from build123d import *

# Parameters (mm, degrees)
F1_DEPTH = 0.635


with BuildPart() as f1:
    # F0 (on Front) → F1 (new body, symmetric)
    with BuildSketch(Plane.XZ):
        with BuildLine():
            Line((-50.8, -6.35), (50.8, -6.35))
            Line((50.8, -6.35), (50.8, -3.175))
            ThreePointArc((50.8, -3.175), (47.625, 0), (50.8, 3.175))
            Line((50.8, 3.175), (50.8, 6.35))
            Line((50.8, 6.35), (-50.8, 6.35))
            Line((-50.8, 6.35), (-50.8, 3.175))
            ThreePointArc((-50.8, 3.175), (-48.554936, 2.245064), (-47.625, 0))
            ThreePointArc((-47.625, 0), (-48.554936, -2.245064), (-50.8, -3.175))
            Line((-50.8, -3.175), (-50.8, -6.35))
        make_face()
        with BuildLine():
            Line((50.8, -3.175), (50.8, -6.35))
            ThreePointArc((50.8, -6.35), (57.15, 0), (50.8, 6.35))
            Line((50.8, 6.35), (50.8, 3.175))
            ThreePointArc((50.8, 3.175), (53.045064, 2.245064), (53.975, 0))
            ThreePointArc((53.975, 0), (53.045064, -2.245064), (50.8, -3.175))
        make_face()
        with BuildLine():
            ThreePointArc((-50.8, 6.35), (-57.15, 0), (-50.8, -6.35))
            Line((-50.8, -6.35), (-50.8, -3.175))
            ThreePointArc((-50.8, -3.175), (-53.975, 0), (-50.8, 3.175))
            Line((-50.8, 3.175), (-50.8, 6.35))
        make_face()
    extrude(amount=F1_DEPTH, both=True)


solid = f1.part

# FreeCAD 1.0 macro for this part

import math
import FreeCAD as App
import Part
import Sketcher

V = App.Vector
Q = App.Units.Quantity

doc = App.newDocument("Part")
body = doc.addObject("PartDesign::Body", "Body")

# Sketch on XZ plane
sketch1 = body.newObject("Sketcher::SketchObject", "Sketch")
sketch1.AttachmentSupport = (doc.getObject("XZ_Plane"), [""])
sketch1.MapMode = "FlatFace"
sketch1.addGeometry(Part.LineSegment(V(-50.8, -6.35, 0), V(50.8, -6.35, 0)), False)
sketch1.addGeometry(Part.ArcOfCircle(Part.Circle(V(50.8, 0, 0), V(0, 0, 1), 6.35), math.radians(-90), math.radians(90)), False)
sketch1.addGeometry(Part.LineSegment(V(50.8, 6.35, 0), V(-50.8, 6.35, 0)), False)
sketch1.addGeometry(Part.ArcOfCircle(Part.Circle(V(-50.8, 0, 0), V(0, 0, 1), 6.35), math.radians(90), math.radians(270)), False)
sketch1.addGeometry(Part.ArcOfCircle(Part.Circle(V(-50.8, 0, 0), V(0, 0, 1), 3.175), math.radians(0.000002), math.radians(89.999998)), False)
sketch1.addGeometry(Part.ArcOfCircle(Part.Circle(V(-50.8, 0, 0), V(0, 0, 1), 3.175), math.radians(-89.999998), math.radians(-0.000002)), False)
sketch1.addGeometry(Part.ArcOfCircle(Part.Circle(V(-50.8, 0, 0), V(0, 0, 1), 3.175), math.radians(90), math.radians(270)), False)
sketch1.addGeometry(Part.ArcOfCircle(Part.Circle(V(50.8, 0, 0), V(0, 0, 1), 3.175), math.radians(90), math.radians(270)), False)
sketch1.addGeometry(Part.ArcOfCircle(Part.Circle(V(50.8, 0, 0), V(0, 0, 1), 3.175), math.radians(0.000002), math.radians(89.999998)), False)
sketch1.addGeometry(Part.ArcOfCircle(Part.Circle(V(50.8, 0, 0), V(0, 0, 1), 3.175), math.radians(-89.999998), math.radians(-0.000002)), False)
sketch1.addConstraint(Sketcher.Constraint("Tangent", 0, 2, 1, 1))
sketch1.addConstraint(Sketcher.Constraint("Tangent", 1, 2, 2, 1))
sketch1.addConstraint(Sketcher.Constraint("Tangent", 2, 2, 3, 1))
sketch1.addConstraint(Sketcher.Constraint("Tangent", 3, 2, 0, 1))
sketch1.addConstraint(Sketcher.Constraint("Tangent", 4, 1, 5, 2))
sketch1.addConstraint(Sketcher.Constraint("Tangent", 5, 1, 6, 2))
sketch1.addConstraint(Sketcher.Constraint("Tangent", 6, 1, 4, 2))
sketch1.addConstraint(Sketcher.Constraint("Tangent", 7, 1, 8, 2))
sketch1.addConstraint(Sketcher.Constraint("Tangent", 8, 1, 9, 2))
sketch1.addConstraint(Sketcher.Constraint("Tangent", 9, 1, 7, 2))
sketch1.addConstraint(Sketcher.Constraint("Horizontal", 0))
sketch1.addConstraint(Sketcher.Constraint("Horizontal", 2))
sketch1.addConstraint(Sketcher.Constraint("Coincident", 4, 3, 3, 3))
sketch1.addConstraint(Sketcher.Constraint("Coincident", 7, 3, 1, 3))
sketch1.addConstraint(Sketcher.Constraint("Equal", 6, 7))
sketch1.addConstraint(Sketcher.Constraint("Symmetric", 1, 3, 3, 3, -1, 1))
sketch1.addConstraint(Sketcher.Constraint("PointOnObject", 4, 1, -1))
sketch1.addConstraint(Sketcher.Constraint("PointOnObject", 8, 1, -1))
sketch1.addConstraint(Sketcher.Constraint("Vertical", 3, 2, 5, 1))
sketch1.addConstraint(Sketcher.Constraint("Vertical", 5, 1, 6, 1))
sketch1.addConstraint(Sketcher.Constraint("Vertical", 1, 2, 7, 1))
sketch1.addConstraint(Sketcher.Constraint("Vertical", 7, 1, 9, 1))
sketch1.addConstraint(Sketcher.Constraint("DistanceX", 0, 1, 0, 2, Q("4 in")))
sketch1.addConstraint(Sketcher.Constraint("Radius", 1, Q("0.25 in")))
sketch1.addConstraint(Sketcher.Constraint("Radius", 4, Q("0.125 in")))
pad1 = body.newObject("PartDesign::Pad", "Pad")
pad1.Profile = sketch1
pad1.Length = Q("0.05 in")
pad1.Midplane = True

doc.recompute()
